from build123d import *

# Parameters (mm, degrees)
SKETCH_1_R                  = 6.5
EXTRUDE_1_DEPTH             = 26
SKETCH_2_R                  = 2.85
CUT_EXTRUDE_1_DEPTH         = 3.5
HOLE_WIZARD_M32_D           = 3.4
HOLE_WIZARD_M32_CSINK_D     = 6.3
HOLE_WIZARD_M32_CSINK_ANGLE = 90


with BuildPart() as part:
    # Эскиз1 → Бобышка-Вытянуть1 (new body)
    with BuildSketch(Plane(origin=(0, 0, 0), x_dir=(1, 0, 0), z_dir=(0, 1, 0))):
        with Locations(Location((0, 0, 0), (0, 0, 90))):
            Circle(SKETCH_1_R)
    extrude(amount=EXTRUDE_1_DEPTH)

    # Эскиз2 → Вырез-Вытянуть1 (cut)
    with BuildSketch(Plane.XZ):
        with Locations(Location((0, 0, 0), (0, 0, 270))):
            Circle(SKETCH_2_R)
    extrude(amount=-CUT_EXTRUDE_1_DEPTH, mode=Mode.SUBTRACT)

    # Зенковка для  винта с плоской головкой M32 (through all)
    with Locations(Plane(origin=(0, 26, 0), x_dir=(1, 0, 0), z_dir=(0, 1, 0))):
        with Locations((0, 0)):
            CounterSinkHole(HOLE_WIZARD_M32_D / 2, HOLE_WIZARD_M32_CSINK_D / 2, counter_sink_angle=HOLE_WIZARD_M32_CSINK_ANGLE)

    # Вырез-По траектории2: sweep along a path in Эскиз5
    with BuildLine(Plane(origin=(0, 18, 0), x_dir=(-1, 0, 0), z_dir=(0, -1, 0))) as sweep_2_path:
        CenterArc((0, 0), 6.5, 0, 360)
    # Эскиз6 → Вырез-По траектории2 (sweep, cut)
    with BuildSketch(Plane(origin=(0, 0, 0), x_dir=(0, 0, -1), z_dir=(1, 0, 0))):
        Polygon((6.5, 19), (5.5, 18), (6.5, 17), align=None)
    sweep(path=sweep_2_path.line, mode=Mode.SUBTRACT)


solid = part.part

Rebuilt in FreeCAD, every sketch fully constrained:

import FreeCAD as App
import Part
import Sketcher

doc = App.newDocument("Part")
params = doc.addObject("Spreadsheet::Sheet", "Params")
for row, (alias, value) in enumerate([
    ("sketch1_diameter", "13 mm"),
    ("pad1_length", "26 mm"),
    ("sketch2_diameter", "5.7 mm"),
    ("pocket1_length", "3.5 mm"),
    ("sketch3_diameter", "3.4 mm"),
    ("hole_diameter", "3.4 mm"),
    ("hole_csink_diameter", "6.3 mm"),
    ("sketch4_width", "2 mm"),
    ("sketch5_diameter", "13 mm"),
], start=1):
    params.set(f"A{row}", alias)
    params.set(f"B{row}", "=" + value)
    params.setAlias(f"B{row}", alias)

body = doc.addObject("PartDesign::Body", "Body")

# Sketch on XZ plane
sketch1 = body.newObject("Sketcher::SketchObject", "Sketch")
sketch1.AttachmentSupport = (doc.getObject("XZ_Plane"), [""])
sketch1.MapMode = "FlatFace"
sketch1.addGeometry(Part.Circle(App.Vector(0, 0, 0), App.Vector(0, 0, 1), 6), False)
sketch1.addConstraint([
    Sketcher.Constraint("Coincident", 0, 3, -1, 1),
    Sketcher.Constraint("Diameter", 0, 13.0),
])
sketch1.setExpression("Constraints[1]", "Params.sketch1_diameter")
pad1 = body.newObject("PartDesign::Pad", "Pad")
pad1.Profile = sketch1
pad1.setExpression("Length", "Params.pad1_length")
pad1.Reversed = True

# Sketch on XZ plane
sketch2 = body.newObject("Sketcher::SketchObject", "Sketch001")
sketch2.AttachmentSupport = (doc.getObject("XZ_Plane"), [""])
sketch2.MapMode = "FlatFace"
sketch2.addGeometry(Part.Circle(App.Vector(0, 0, 0), App.Vector(0, 0, 1), 2.9), False)
sketch2.addConstraint([
    Sketcher.Constraint("Coincident", 0, 3, -1, 1),
    Sketcher.Constraint("Diameter", 0, 5.7),
])
sketch2.setExpression("Constraints[1]", "Params.sketch2_diameter")
pocket1 = body.newObject("PartDesign::Pocket", "Pocket")
pocket1.Profile = sketch2
pocket1.setExpression("Length", "Params.pocket1_length")

# Sketch on XZ plane
sketch3 = body.newObject("Sketcher::SketchObject", "Sketch002")
sketch3.AttachmentSupport = (doc.getObject("XZ_Plane"), [""])
sketch3.MapMode = "FlatFace"
sketch3.AttachmentOffset = App.Placement(App.Vector(0, 0, -26), App.Rotation())
sketch3.addGeometry(Part.Circle(App.Vector(0, 0, 0), App.Vector(0, 0, 1), 1.7), False)
sketch3.addConstraint([
    Sketcher.Constraint("Coincident", 0, 3, -1, 1),
    Sketcher.Constraint("Diameter", 0, 3.4),
])
sketch3.setExpression("Constraints[1]", "Params.sketch3_diameter")
doc.recompute()
hole = body.newObject("PartDesign::Hole", "Hole")
hole.Profile = sketch3
hole.ThreadType = "None"
hole.setExpression("Diameter", "Params.hole_diameter")
hole.DepthType = "ThroughAll"
hole.HoleCutType = "Countersink"
hole.setExpression("HoleCutDiameter", "Params.hole_csink_diameter")
hole.HoleCutCountersinkAngle = 90
hole.Reversed = True

# Sketch on YZ plane
sketch4 = body.newObject("Sketcher::SketchObject", "Sketch003")
sketch4.AttachmentSupport = (doc.getObject("YZ_Plane"), [""])
sketch4.MapMode = "FlatFace"
sketch4.addGeometry([
    Part.LineSegment(App.Vector(19, -6.5, 0), App.Vector(18, -5.5, 0)),
    Part.LineSegment(App.Vector(18, -5.5, 0), App.Vector(17, -6.5, 0)),
    Part.LineSegment(App.Vector(17, -6.5, 0), App.Vector(19, -6.5, 0)),
], False)
sketch4.addConstraint([
    Sketcher.Constraint("Coincident", 0, 2, 1, 1),
    Sketcher.Constraint("Coincident", 1, 2, 2, 1),
    Sketcher.Constraint("Coincident", 2, 2, 0, 1),
    Sketcher.Constraint("Horizontal", 2),
    Sketcher.Constraint("Perpendicular", 0, 1),
    Sketcher.Constraint("Equal", 0, 1),
    Sketcher.Constraint("DistanceX", 2, 1, 2, 2, 2.0),
    Sketcher.Constraint("DistanceX", -1, 1, 0, 2, 18.0),
    Sketcher.Constraint("DistanceY", 0, 2, -1, 1, 5.5),
])
sketch4.setExpression("Constraints[6]", "Params.sketch4_width")

# Sketch on XZ plane
sketch5 = body.newObject("Sketcher::SketchObject", "Sketch004")
sketch5.AttachmentSupport = (doc.getObject("XZ_Plane"), [""])
sketch5.MapMode = "FlatFace"
sketch5.AttachmentOffset = App.Placement(App.Vector(0, 0, -18), App.Rotation())
sketch5.addGeometry(Part.Circle(App.Vector(0, 0, 0), App.Vector(0, 0, 1), 6), False)
sketch5.addConstraint([
    Sketcher.Constraint("Coincident", 0, 3, -1, 1),
    Sketcher.Constraint("Diameter", 0, 13.0),
])
sketch5.setExpression("Constraints[1]", "Params.sketch5_diameter")
doc.recompute()

subtractivepipe = body.newObject("PartDesign::SubtractivePipe", "SubtractivePipe")
subtractivepipe.Profile = sketch4
subtractivepipe.Spine = (sketch5, ["Edge1"])

doc.recompute()
